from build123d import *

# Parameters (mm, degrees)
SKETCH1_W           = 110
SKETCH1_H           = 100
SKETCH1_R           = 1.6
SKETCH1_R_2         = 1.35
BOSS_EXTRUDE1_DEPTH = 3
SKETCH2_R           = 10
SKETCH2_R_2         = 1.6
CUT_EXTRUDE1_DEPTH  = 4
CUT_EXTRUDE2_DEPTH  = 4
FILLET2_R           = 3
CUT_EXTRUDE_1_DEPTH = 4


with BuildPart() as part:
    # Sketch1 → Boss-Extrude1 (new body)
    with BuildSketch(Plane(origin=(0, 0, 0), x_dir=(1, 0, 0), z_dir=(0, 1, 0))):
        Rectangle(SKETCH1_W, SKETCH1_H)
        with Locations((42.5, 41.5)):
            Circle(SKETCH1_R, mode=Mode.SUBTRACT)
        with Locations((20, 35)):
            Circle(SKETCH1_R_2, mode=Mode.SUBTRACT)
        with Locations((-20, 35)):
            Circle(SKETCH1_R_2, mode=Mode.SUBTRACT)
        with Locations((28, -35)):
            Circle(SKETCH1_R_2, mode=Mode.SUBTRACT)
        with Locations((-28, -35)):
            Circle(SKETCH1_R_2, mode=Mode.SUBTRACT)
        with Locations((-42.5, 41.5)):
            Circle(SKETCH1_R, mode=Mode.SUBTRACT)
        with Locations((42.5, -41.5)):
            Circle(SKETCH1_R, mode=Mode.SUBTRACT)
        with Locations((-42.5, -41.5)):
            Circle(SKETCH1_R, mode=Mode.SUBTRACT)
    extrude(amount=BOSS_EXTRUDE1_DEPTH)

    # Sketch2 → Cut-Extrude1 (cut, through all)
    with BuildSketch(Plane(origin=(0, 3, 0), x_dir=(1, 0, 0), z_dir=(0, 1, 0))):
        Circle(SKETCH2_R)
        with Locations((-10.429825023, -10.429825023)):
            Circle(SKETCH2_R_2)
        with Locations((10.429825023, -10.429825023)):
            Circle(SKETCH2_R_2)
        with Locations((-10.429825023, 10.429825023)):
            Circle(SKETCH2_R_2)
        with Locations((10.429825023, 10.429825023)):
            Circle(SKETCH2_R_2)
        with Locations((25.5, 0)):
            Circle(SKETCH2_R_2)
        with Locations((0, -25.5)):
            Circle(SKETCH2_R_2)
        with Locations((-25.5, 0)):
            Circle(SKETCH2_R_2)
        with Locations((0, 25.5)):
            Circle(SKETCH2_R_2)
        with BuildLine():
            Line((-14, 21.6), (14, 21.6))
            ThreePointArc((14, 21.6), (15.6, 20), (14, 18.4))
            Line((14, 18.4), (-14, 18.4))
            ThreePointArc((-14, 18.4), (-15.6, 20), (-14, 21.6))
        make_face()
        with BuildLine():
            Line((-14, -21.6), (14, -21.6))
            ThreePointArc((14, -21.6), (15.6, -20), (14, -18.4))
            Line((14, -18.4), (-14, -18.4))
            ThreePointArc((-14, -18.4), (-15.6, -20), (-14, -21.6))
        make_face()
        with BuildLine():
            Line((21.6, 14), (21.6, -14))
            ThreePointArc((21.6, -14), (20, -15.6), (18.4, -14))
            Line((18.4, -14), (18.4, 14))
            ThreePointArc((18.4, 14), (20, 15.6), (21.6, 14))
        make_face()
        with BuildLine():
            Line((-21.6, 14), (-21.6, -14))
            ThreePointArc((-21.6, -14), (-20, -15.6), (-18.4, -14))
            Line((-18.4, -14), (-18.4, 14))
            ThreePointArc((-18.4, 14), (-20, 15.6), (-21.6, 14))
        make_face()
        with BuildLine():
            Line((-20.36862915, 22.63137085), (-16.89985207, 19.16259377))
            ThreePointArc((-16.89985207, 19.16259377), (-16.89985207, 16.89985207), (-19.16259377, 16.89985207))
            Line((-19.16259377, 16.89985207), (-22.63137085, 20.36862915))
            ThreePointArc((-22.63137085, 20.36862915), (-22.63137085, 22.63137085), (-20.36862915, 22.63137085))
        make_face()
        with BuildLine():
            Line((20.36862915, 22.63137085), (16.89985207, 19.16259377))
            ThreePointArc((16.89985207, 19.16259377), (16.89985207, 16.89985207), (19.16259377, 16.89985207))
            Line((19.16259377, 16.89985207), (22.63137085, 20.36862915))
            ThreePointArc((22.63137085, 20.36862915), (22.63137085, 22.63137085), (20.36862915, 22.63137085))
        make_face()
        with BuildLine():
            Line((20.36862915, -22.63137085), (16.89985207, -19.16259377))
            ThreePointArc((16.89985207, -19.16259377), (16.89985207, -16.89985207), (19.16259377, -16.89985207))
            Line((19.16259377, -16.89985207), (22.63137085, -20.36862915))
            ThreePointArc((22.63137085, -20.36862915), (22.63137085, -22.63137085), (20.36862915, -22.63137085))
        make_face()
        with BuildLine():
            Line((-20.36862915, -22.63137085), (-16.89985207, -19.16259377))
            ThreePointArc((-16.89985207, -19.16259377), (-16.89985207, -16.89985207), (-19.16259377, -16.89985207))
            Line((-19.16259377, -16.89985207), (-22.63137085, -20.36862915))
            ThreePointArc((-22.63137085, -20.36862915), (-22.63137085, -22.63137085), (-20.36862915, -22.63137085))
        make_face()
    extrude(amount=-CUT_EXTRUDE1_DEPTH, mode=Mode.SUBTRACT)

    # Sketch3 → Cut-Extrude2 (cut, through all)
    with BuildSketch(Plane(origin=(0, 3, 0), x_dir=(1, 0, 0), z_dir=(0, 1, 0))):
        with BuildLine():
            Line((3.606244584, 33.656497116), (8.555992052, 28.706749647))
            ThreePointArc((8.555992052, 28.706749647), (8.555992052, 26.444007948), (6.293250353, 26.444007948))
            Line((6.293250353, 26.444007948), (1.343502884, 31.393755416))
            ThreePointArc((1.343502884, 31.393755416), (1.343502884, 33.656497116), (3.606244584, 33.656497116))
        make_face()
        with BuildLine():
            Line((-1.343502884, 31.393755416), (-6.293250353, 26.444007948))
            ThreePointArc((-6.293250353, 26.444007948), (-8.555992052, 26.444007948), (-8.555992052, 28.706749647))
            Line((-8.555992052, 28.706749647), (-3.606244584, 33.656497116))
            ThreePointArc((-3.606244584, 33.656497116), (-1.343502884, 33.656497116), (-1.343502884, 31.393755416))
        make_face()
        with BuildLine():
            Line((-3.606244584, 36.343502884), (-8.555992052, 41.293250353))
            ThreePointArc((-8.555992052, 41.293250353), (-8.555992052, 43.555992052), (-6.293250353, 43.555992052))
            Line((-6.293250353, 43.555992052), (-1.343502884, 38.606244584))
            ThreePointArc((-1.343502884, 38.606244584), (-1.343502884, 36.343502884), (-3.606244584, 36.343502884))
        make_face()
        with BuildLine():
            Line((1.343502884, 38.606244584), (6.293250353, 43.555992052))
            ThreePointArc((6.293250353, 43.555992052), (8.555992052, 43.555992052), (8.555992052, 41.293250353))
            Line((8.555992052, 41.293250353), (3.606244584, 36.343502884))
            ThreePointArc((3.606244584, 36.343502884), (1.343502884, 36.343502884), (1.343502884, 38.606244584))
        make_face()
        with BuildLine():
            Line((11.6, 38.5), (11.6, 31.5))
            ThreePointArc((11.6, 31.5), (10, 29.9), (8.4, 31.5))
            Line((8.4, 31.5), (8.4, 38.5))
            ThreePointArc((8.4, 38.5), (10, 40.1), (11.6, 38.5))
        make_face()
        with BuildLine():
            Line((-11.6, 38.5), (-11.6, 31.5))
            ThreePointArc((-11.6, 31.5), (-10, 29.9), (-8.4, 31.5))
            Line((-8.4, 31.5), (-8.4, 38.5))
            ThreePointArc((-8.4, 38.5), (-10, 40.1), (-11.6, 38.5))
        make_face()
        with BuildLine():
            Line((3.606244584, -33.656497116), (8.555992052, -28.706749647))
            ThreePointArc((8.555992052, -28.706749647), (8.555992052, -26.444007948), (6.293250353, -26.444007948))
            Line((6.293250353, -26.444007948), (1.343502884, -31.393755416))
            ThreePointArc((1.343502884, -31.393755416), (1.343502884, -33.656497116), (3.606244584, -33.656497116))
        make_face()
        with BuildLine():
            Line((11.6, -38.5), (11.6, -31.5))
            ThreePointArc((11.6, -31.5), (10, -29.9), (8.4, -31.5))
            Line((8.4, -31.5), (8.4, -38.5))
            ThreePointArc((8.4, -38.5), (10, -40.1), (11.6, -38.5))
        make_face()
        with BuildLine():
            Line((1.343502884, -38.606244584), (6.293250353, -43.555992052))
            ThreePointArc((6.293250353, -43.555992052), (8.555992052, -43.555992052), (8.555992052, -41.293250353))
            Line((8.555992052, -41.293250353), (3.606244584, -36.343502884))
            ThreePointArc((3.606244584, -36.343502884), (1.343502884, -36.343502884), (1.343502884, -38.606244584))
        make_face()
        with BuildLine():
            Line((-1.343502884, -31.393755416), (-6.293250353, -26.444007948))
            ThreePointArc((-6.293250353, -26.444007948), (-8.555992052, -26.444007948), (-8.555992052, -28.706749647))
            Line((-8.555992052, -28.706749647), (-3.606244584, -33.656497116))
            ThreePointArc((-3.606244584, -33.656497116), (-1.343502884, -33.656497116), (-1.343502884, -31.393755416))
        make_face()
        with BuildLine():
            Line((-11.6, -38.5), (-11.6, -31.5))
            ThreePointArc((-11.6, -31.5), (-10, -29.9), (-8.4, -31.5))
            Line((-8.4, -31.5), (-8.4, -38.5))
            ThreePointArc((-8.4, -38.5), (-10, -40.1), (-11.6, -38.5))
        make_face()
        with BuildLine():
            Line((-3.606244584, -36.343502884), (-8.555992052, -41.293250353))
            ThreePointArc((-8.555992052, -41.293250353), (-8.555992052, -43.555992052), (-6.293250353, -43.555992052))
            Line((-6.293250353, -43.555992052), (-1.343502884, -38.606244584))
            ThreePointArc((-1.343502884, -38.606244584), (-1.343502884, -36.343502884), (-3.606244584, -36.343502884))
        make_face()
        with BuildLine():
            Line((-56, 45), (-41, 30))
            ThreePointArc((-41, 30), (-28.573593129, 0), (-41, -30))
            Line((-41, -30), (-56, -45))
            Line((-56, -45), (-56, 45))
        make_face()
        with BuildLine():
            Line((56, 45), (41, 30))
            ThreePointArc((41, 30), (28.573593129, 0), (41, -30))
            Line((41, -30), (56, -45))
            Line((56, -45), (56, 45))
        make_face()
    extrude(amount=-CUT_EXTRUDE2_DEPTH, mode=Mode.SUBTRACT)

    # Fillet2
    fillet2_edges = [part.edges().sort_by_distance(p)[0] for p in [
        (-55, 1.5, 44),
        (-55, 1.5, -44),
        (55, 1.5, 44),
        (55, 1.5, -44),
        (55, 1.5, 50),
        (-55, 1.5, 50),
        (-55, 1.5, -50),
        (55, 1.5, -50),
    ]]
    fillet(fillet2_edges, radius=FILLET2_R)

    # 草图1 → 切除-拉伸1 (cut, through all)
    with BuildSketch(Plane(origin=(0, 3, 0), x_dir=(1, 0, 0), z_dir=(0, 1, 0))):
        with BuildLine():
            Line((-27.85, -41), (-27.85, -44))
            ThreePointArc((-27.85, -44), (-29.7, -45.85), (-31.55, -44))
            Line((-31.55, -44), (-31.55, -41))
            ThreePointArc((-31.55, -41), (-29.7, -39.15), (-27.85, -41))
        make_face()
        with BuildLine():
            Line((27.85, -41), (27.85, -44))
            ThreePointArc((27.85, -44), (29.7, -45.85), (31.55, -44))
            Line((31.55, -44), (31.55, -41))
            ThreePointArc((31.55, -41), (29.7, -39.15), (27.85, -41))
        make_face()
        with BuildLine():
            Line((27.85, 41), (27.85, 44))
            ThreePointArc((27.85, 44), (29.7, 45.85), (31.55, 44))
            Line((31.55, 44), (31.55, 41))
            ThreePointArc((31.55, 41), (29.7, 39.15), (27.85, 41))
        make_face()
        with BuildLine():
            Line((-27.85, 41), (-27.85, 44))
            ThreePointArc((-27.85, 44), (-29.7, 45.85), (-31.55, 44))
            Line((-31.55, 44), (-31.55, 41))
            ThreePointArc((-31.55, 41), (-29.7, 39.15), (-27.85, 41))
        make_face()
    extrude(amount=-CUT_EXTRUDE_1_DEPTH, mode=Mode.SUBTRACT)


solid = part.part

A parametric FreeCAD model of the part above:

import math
import FreeCAD as App
import Part
import Sketcher

V = App.Vector
Q = App.Units.Quantity


def edges_at(feature, points):
    """Names of the edges that pass closest to the given points."""
    edges = feature.Shape.Edges
    near = lambda p: min(range(len(edges)), key=lambda i: edges[i].distToShape(Part.Vertex(*p))[0])
    return sorted({f"Edge{near(p) + 1}" for p in points})


def add_polygon(sketch, points):
    """Adds a closed chain of lines whose ends are joined by coincident constraints."""
    first, n = sketch.GeometryCount, len(points)
    for a, b in zip(points, points[1:] + points[:1]):
        sketch.addGeometry(Part.LineSegment(App.Vector(*a, 0), App.Vector(*b, 0)), False)
    for i in range(n):
        sketch.addConstraint(Sketcher.Constraint("Coincident", first + i, 2, first + (i + 1) % n, 1))

doc = App.newDocument("Part")
body = doc.addObject("PartDesign::Body", "Body")

# Sketch on XZ plane
sketch1 = body.newObject("Sketcher::SketchObject", "Sketch")
sketch1.AttachmentSupport = (doc.getObject("XZ_Plane"), [""])
sketch1.MapMode = "FlatFace"
add_polygon(sketch1, [(-55, -50), (-55, 50), (55, 50), (55, -50)])  # lines 0-3
sketch1.addGeometry(Part.Circle(V(-42.5, 41.5, 0), V(0, 0, 1), 1.6), False)  # 4
sketch1.addGeometry(Part.Circle(V(-28, 35, 0), V(0, 0, 1), 1.4), False)  # 5
sketch1.addGeometry(Part.Circle(V(28, 35, 0), V(0, 0, 1), 1.4), False)  # 6
sketch1.addGeometry(Part.Circle(V(42.5, 41.5, 0), V(0, 0, 1), 1.6), False)  # 7
sketch1.addGeometry(Part.Circle(V(-42.5, -41.5, 0), V(0, 0, 1), 1.6), False)  # 8
sketch1.addGeometry(Part.Circle(V(-20, -35, 0), V(0, 0, 1), 1.4), False)  # 9
sketch1.addGeometry(Part.Circle(V(20, -35, 0), V(0, 0, 1), 1.4), False)  # 10
sketch1.addGeometry(Part.Circle(V(42.5, -41.5, 0), V(0, 0, 1), 1.6), False)  # 11
sketch1.addConstraint([
    Sketcher.Constraint("Vertical", 0),
    Sketcher.Constraint("Horizontal", 1),
    Sketcher.Constraint("Vertical", 2),
    Sketcher.Constraint("Horizontal", 3),
    Sketcher.Constraint("Equal", 5, 6),
    Sketcher.Constraint("Equal", 4, 7),
    Sketcher.Constraint("Equal", 7, 8),
    Sketcher.Constraint("Equal", 6, 9),
    Sketcher.Constraint("Equal", 9, 10),
    Sketcher.Constraint("Equal", 8, 11),
    Sketcher.Constraint("Symmetric", 7, 3, 8, 3, -1, 1),
    Sketcher.Constraint("Symmetric", 4, 3, 11, 3, -1, 1),
    Sketcher.Constraint("Symmetric", 0, 2, 2, 2, -1, 1),
    Sketcher.Constraint("Symmetric", 5, 3, 6, 3, -2),
    Sketcher.Constraint("Symmetric", 4, 3, 7, 3, -2),
    Sketcher.Constraint("Symmetric", 9, 3, 10, 3, -2),
    Sketcher.Constraint("Diameter", 4, Q("3.2 mm")),
    Sketcher.Constraint("Diameter", 5, Q("2.7 mm")),
    Sketcher.Constraint("DistanceX", 1, 1, 1, 2, Q("110 mm")),
    Sketcher.Constraint("DistanceY", 0, 1, 0, 2, Q("100 mm")),
    Sketcher.Constraint("DistanceX", 5, 3, -1, 1, Q("28 mm")),
    Sketcher.Constraint("DistanceY", -1, 1, 5, 3, Q("35 mm")),
    Sketcher.Constraint("DistanceX", 9, 3, -1, 1, Q("20 mm")),
    Sketcher.Constraint("DistanceY", 9, 3, -1, 1, Q("35 mm")),
    Sketcher.Constraint("DistanceX", 4, 3, 7, 3, Q("85 mm")),
    Sketcher.Constraint("DistanceY", 8, 3, 4, 3, Q("83 mm")),
])
pad1 = body.newObject("PartDesign::Pad", "Pad")
pad1.Profile = sketch1
pad1.Length = 3
pad1.Reversed = True

# Sketch on XZ plane
sketch2 = body.newObject("Sketcher::SketchObject", "Sketch001")
sketch2.AttachmentSupport = (doc.getObject("XZ_Plane"), [""])
sketch2.MapMode = "FlatFace"
sketch2.AttachmentOffset = App.Placement(V(0, 0, -3), App.Rotation())
sketch2.addGeometry([
    Part.Circle(V(0, 0, 0), V(0, 0, 1), 10),  # 0
    Part.Circle(V(-10.4, 10.4, 0), V(0, 0, 1), 1.6),  # 1
    Part.Circle(V(10.4, 10.4, 0), V(0, 0, 1), 1.6),  # 2
    Part.Circle(V(-10.4, -10.4, 0), V(0, 0, 1), 1.6),  # 3
    Part.Circle(V(10.4, -10.4, 0), V(0, 0, 1), 1.6),  # 4
    Part.Circle(V(25.5, 0, 0), V(0, 0, 1), 1.6),  # 5
    Part.Circle(V(0, 25.5, 0), V(0, 0, 1), 1.6),  # 6
    Part.Circle(V(-25.5, 0, 0), V(0, 0, 1), 1.6),  # 7
    Part.Circle(V(0, -25.5, 0), V(0, 0, 1), 1.6),  # 8
    Part.LineSegment(V(14, -21.6, 0), V(-14, -21.6, 0)),  # 9
    Part.ArcOfCircle(Part.Circle(V(-14, -20, 0), V(0, 0, 1), 1.6), math.radians(90), math.radians(270)),  # 10
    Part.LineSegment(V(-14, -18.4, 0), V(14, -18.4, 0)),  # 11
    Part.ArcOfCircle(Part.Circle(V(14, -20, 0), V(0, 0, 1), 1.6), math.radians(-90), math.radians(90)),  # 12
    Part.LineSegment(V(-14, 21.6, 0), V(14, 21.6, 0)),  # 13
    Part.ArcOfCircle(Part.Circle(V(14, 20, 0), V(0, 0, 1), 1.6), math.radians(-90), math.radians(90)),  # 14
    Part.LineSegment(V(14, 18.4, 0), V(-14, 18.4, 0)),  # 15
    Part.ArcOfCircle(Part.Circle(V(-14, 20, 0), V(0, 0, 1), 1.6), math.radians(90), math.radians(270)),  # 16
    Part.LineSegment(V(21.6, 14, 0), V(21.6, -14, 0)),  # 17
    Part.ArcOfCircle(Part.Circle(V(20, -14, 0), V(0, 0, 1), 1.6), math.radians(180), math.radians(360)),  # 18
    Part.LineSegment(V(18.4, -14, 0), V(18.4, 14, 0)),  # 19
    Part.ArcOfCircle(Part.Circle(V(20, 14, 0), V(0, 0, 1), 1.6), math.radians(0), math.radians(180)),  # 20
    Part.LineSegment(V(-21.6, -14, 0), V(-21.6, 14, 0)),  # 21
    Part.ArcOfCircle(Part.Circle(V(-20, 14, 0), V(0, 0, 1), 1.6), math.radians(0), math.radians(180)),  # 22
    Part.LineSegment(V(-18.4, 14, 0), V(-18.4, -14, 0)),  # 23
    Part.ArcOfCircle(Part.Circle(V(-20, -14, 0), V(0, 0, 1), 1.6), math.radians(180), math.radians(360)),  # 24
    Part.LineSegment(V(-16.9, -19.2, 0), V(-20.4, -22.6, 0)),  # 25
    Part.ArcOfCircle(Part.Circle(V(-21.5, -21.5, 0), V(0, 0, 1), 1.6), math.radians(135), math.radians(315)),  # 26
    Part.LineSegment(V(-22.6, -20.4, 0), V(-19.2, -16.9, 0)),  # 27
    Part.ArcOfCircle(Part.Circle(V(-18, -18, 0), V(0, 0, 1), 1.6), math.radians(-45), math.radians(135)),  # 28
    Part.LineSegment(V(20.4, -22.6, 0), V(16.9, -19.2, 0)),  # 29
    Part.ArcOfCircle(Part.Circle(V(18, -18, 0), V(0, 0, 1), 1.6), math.radians(45), math.radians(225)),  # 30
    Part.LineSegment(V(19.2, -16.9, 0), V(22.6, -20.4, 0)),  # 31
    Part.ArcOfCircle(Part.Circle(V(21.5, -21.5, 0), V(0, 0, 1), 1.6), math.radians(-135), math.radians(45)),  # 32
    Part.LineSegment(V(16.9, 19.2, 0), V(20.4, 22.6, 0)),  # 33
    Part.ArcOfCircle(Part.Circle(V(21.5, 21.5, 0), V(0, 0, 1), 1.6), math.radians(-45), math.radians(135)),  # 34
    Part.LineSegment(V(22.6, 20.4, 0), V(19.2, 16.9, 0)),  # 35
    Part.ArcOfCircle(Part.Circle(V(18, 18, 0), V(0, 0, 1), 1.6), math.radians(135), math.radians(315)),  # 36
    Part.LineSegment(V(-20.4, 22.6, 0), V(-16.9, 19.2, 0)),  # 37
    Part.ArcOfCircle(Part.Circle(V(-18, 18, 0), V(0, 0, 1), 1.6), math.radians(-135), math.radians(45)),  # 38
    Part.LineSegment(V(-19.2, 16.9, 0), V(-22.6, 20.4, 0)),  # 39
    Part.ArcOfCircle(Part.Circle(V(-21.5, 21.5, 0), V(0, 0, 1), 1.6), math.radians(45), math.radians(225)),  # 40
], False)
sketch2.addConstraint([
    Sketcher.Constraint("Tangent", 9, 2, 10, 2),
    Sketcher.Constraint("Tangent", 10, 1, 11, 1),
    Sketcher.Constraint("Tangent", 11, 2, 12, 2),
    Sketcher.Constraint("Tangent", 12, 1, 9, 1),
    Sketcher.Constraint("Tangent", 13, 2, 14, 2),
    Sketcher.Constraint("Tangent", 14, 1, 15, 1),
    Sketcher.Constraint("Tangent", 15, 2, 16, 2),
    Sketcher.Constraint("Tangent", 16, 1, 13, 1),
    Sketcher.Constraint("Tangent", 17, 2, 18, 2),
    Sketcher.Constraint("Tangent", 18, 1, 19, 1),
    Sketcher.Constraint("Tangent", 19, 2, 20, 2),
    Sketcher.Constraint("Tangent", 20, 1, 17, 1),
    Sketcher.Constraint("Tangent", 21, 2, 22, 2),
    Sketcher.Constraint("Tangent", 22, 1, 23, 1),
    Sketcher.Constraint("Tangent", 23, 2, 24, 2),
    Sketcher.Constraint("Tangent", 24, 1, 21, 1),
    Sketcher.Constraint("Tangent", 25, 2, 26, 2),
    Sketcher.Constraint("Tangent", 26, 1, 27, 1),
    Sketcher.Constraint("Tangent", 27, 2, 28, 2),
    Sketcher.Constraint("Tangent", 28, 1, 25, 1),
    Sketcher.Constraint("Tangent", 29, 2, 30, 2),
    Sketcher.Constraint("Tangent", 30, 1, 31, 1),
    Sketcher.Constraint("Tangent", 31, 2, 32, 2),
    Sketcher.Constraint("Tangent", 32, 1, 29, 1),
    Sketcher.Constraint("Tangent", 33, 2, 34, 2),
    Sketcher.Constraint("Tangent", 34, 1, 35, 1),
    Sketcher.Constraint("Tangent", 35, 2, 36, 2),
    Sketcher.Constraint("Tangent", 36, 1, 33, 1),
    Sketcher.Constraint("Tangent", 37, 2, 38, 2),
    Sketcher.Constraint("Tangent", 38, 1, 39, 1),
    Sketcher.Constraint("Tangent", 39, 2, 40, 2),
    Sketcher.Constraint("Tangent", 40, 1, 37, 1),
    Sketcher.Constraint("Horizontal", 9),
    Sketcher.Constraint("Horizontal", 11),
    Sketcher.Constraint("Horizontal", 13),
    Sketcher.Constraint("Horizontal", 15),
    Sketcher.Constraint("Vertical", 17),
    Sketcher.Constraint("Vertical", 19),
    Sketcher.Constraint("Vertical", 21),
    Sketcher.Constraint("Vertical", 23),
    Sketcher.Constraint("Coincident", 0, 3, -1, 1),
    Sketcher.Constraint("Equal", 1, 2),
    Sketcher.Constraint("Equal", 2, 3),
    Sketcher.Constraint("Equal", 3, 4),
    Sketcher.Constraint("Equal", 4, 5),
    Sketcher.Constraint("Equal", 5, 6),
    Sketcher.Constraint("Equal", 6, 7),
    Sketcher.Constraint("Equal", 7, 8),
    Sketcher.Constraint("Equal", 8, 10),
    Sketcher.Constraint("Equal", 12, 14),
    Sketcher.Constraint("Equal", 16, 18),
    Sketcher.Constraint("Equal", 20, 22),
    Sketcher.Constraint("Equal", 24, 26),
    Sketcher.Constraint("Equal", 26, 28),
    Sketcher.Constraint("Equal", 28, 30),
    Sketcher.Constraint("Equal", 30, 32),
    Sketcher.Constraint("Equal", 32, 34),
    Sketcher.Constraint("Equal", 34, 36),
    Sketcher.Constraint("Equal", 36, 38),
    Sketcher.Constraint("Equal", 38, 40),
    Sketcher.Constraint("Symmetric", 2, 3, 3, 3, -1, 1),
    Sketcher.Constraint("Symmetric", 1, 3, 4, 3, -1, 1),
    Sketcher.Constraint("Symmetric", 5, 3, 7, 3, -1, 1),
    Sketcher.Constraint("Symmetric", 6, 3, 8, 3, -1, 1),
    Sketcher.Constraint("Symmetric", 10, 3, 14, 3, -1, 1),
    Sketcher.Constraint("Symmetric", 18, 3, 22, 3, -1, 1),
    Sketcher.Constraint("Symmetric", 26, 3, 34, 3, -1, 1),
    Sketcher.Constraint("Symmetric", 28, 3, 36, 3, -1, 1),
    Sketcher.Constraint("Symmetric", 30, 3, 38, 3, -1, 1),
    Sketcher.Constraint("Symmetric", 32, 3, 40, 3, -1, 1),
    Sketcher.Constraint("Symmetric", 1, 3, 2, 3, -2),
    Sketcher.Constraint("Symmetric", 28, 3, 30, 3, -2),
    Sketcher.Constraint("Symmetric", 26, 3, 32, 3, -2),
    Sketcher.Constraint("PointOnObject", 5, 3, -1),
    Sketcher.Constraint("PointOnObject", 6, 3, -2),
    Sketcher.Constraint("Perpendicular", 27, 29),
    Sketcher.Constraint("Horizontal", 20, 3, 22, 3),
    Sketcher.Constraint("Horizontal", 18, 3, 24, 3),
    Sketcher.Constraint("Vertical", 12, 3, 14, 3),
    Sketcher.Constraint("Vertical", 10, 3, 16, 3),
    Sketcher.Constraint("Equal", 15, 17),
    Sketcher.Constraint("Diameter", 0, Q("20 mm")),
    Sketcher.Constraint("Diameter", 1, Q("3.2 mm")),
    Sketcher.Constraint("DistanceX", 9, 2, 9, 1, Q("28 mm")),
    Sketcher.Constraint("DistanceY", 10, 3, -1, 1, Q("20 mm")),
    Sketcher.Constraint("DistanceX", -1, 1, 18, 3, Q("20 mm")),
    Sketcher.Constraint("DistanceX", 7, 3, 26, 3, Q("4 mm")),
    Sketcher.Constraint("DistanceY", 8, 3, 26, 3, Q("4 mm")),
    Sketcher.Constraint("DistanceX", -1, 1, 5, 3, Q("25.5 mm")),
    Sketcher.Constraint("DistanceY", -1, 1, 6, 3, Q("25.5 mm")),
    Sketcher.Constraint("Distance", 25, Q("4.905592 mm")),
    Sketcher.Constraint("DistanceX", 1, 3, 2, 3, Q("20.85965 mm")),
    Sketcher.Constraint("DistanceY", 3, 3, 1, 3, Q("20.85965 mm")),
])
pocket1 = body.newObject("PartDesign::Pocket", "Pocket")
pocket1.Profile = sketch2
pocket1.Type = "ThroughAll"
pocket1.Reversed = True

# Sketch on XZ plane
sketch3 = body.newObject("Sketcher::SketchObject", "Sketch002")
sketch3.AttachmentSupport = (doc.getObject("XZ_Plane"), [""])
sketch3.MapMode = "FlatFace"
sketch3.AttachmentOffset = App.Placement(V(0, 0, -3), App.Rotation())
sketch3.addGeometry([
    Part.LineSegment(V(8.6, -28.7, 0), V(3.6, -33.7, 0)),  # 0
    Part.ArcOfCircle(Part.Circle(V(2.5, -32.5, 0), V(0, 0, 1), 1.6), math.radians(135), math.radians(315)),  # 1
    Part.LineSegment(V(1.3, -31.4, 0), V(6.3, -26.4, 0)),  # 2
    Part.ArcOfCircle(Part.Circle(V(7.4, -27.6, 0), V(0, 0, 1), 1.6), math.radians(-45), math.radians(135)),  # 3
    Part.LineSegment(V(-6.3, -26.4, 0), V(-1.3, -31.4, 0)),  # 4
    Part.ArcOfCircle(Part.Circle(V(-2.5, -32.5, 0), V(0, 0, 1), 1.6), math.radians(-135), math.radians(45)),  # 5
    Part.LineSegment(V(-3.6, -33.7, 0), V(-8.6, -28.7, 0)),  # 6
    Part.ArcOfCircle(Part.Circle(V(-7.4, -27.6, 0), V(0, 0, 1), 1.6), math.radians(45), math.radians(225)),  # 7
    Part.LineSegment(V(-8.6, -41.3, 0), V(-3.6, -36.3, 0)),  # 8
    Part.ArcOfCircle(Part.Circle(V(-2.5, -37.5, 0), V(0, 0, 1), 1.6), math.radians(-45), math.radians(135)),  # 9
    Part.LineSegment(V(-1.3, -38.6, 0), V(-6.3, -43.6, 0)),  # 10
    Part.ArcOfCircle(Part.Circle(V(-7.4, -42.4, 0), V(0, 0, 1), 1.6), math.radians(135), math.radians(315)),  # 11
    Part.LineSegment(V(6.3, -43.6, 0), V(1.3, -38.6, 0)),  # 12
    Part.ArcOfCircle(Part.Circle(V(2.5, -37.5, 0), V(0, 0, 1), 1.6), math.radians(45), math.radians(225)),  # 13
    Part.LineSegment(V(3.6, -36.3, 0), V(8.6, -41.3, 0)),  # 14
    Part.ArcOfCircle(Part.Circle(V(7.4, -42.4, 0), V(0, 0, 1), 1.6), math.radians(-135), math.radians(45)),  # 15
    Part.LineSegment(V(11.6, -31.5, 0), V(11.6, -38.5, 0)),  # 16
    Part.ArcOfCircle(Part.Circle(V(10, -38.5, 0), V(0, 0, 1), 1.6), math.radians(180), math.radians(360)),  # 17
    Part.LineSegment(V(8.4, -38.5, 0), V(8.4, -31.5, 0)),  # 18
    Part.ArcOfCircle(Part.Circle(V(10, -31.5, 0), V(0, 0, 1), 1.6), math.radians(0), math.radians(180)),  # 19
    Part.LineSegment(V(-11.6, -38.5, 0), V(-11.6, -31.5, 0)),  # 20
    Part.ArcOfCircle(Part.Circle(V(-10, -31.5, 0), V(0, 0, 1), 1.6), math.radians(0), math.radians(180)),  # 21
    Part.LineSegment(V(-8.4, -31.5, 0), V(-8.4, -38.5, 0)),  # 22
    Part.ArcOfCircle(Part.Circle(V(-10, -38.5, 0), V(0, 0, 1), 1.6), math.radians(180), math.radians(360)),  # 23
    Part.LineSegment(V(3.6, 33.7, 0), V(8.6, 28.7, 0)),  # 24
    Part.ArcOfCircle(Part.Circle(V(7.4, 27.6, 0), V(0, 0, 1), 1.6), math.radians(-135), math.radians(45)),  # 25
    Part.LineSegment(V(6.3, 26.4, 0), V(1.3, 31.4, 0)),  # 26
    Part.ArcOfCircle(Part.Circle(V(2.5, 32.5, 0), V(0, 0, 1), 1.6), math.radians(45), math.radians(225)),  # 27
    Part.LineSegment(V(11.6, 38.5, 0), V(11.6, 31.5, 0)),  # 28
    Part.ArcOfCircle(Part.Circle(V(10, 31.5, 0), V(0, 0, 1), 1.6), math.radians(180), math.radians(360)),  # 29
    Part.LineSegment(V(8.4, 31.5, 0), V(8.4, 38.5, 0)),  # 30
    Part.ArcOfCircle(Part.Circle(V(10, 38.5, 0), V(0, 0, 1), 1.6), math.radians(0), math.radians(180)),  # 31
    Part.LineSegment(V(1.3, 38.6, 0), V(6.3, 43.6, 0)),  # 32
    Part.ArcOfCircle(Part.Circle(V(7.4, 42.4, 0), V(0, 0, 1), 1.6), math.radians(-45), math.radians(135)),  # 33
    Part.LineSegment(V(8.6, 41.3, 0), V(3.6, 36.3, 0)),  # 34
    Part.ArcOfCircle(Part.Circle(V(2.5, 37.5, 0), V(0, 0, 1), 1.6), math.radians(135), math.radians(315)),  # 35
    Part.LineSegment(V(-1.3, 31.4, 0), V(-6.3, 26.4, 0)),  # 36
    Part.ArcOfCircle(Part.Circle(V(-7.4, 27.6, 0), V(0, 0, 1), 1.6), math.radians(135), math.radians(315)),  # 37
    Part.LineSegment(V(-8.6, 28.7, 0), V(-3.6, 33.7, 0)),  # 38
    Part.ArcOfCircle(Part.Circle(V(-2.5, 32.5, 0), V(0, 0, 1), 1.6), math.radians(-45), math.radians(135)),  # 39
    Part.LineSegment(V(-11.6, 31.5, 0), V(-11.6, 38.5, 0)),  # 40
    Part.ArcOfCircle(Part.Circle(V(-10, 38.5, 0), V(0, 0, 1), 1.6), math.radians(0), math.radians(180)),  # 41
    Part.LineSegment(V(-8.4, 38.5, 0), V(-8.4, 31.5, 0)),  # 42
    Part.ArcOfCircle(Part.Circle(V(-10, 31.5, 0), V(0, 0, 1), 1.6), math.radians(180), math.radians(360)),  # 43
    Part.LineSegment(V(-3.6, 36.3, 0), V(-8.6, 41.3, 0)),  # 44
    Part.ArcOfCircle(Part.Circle(V(-7.4, 42.4, 0), V(0, 0, 1), 1.6), math.radians(45), math.radians(225)),  # 45
    Part.LineSegment(V(-6.3, 43.6, 0), V(-1.3, 38.6, 0)),  # 46
    Part.ArcOfCircle(Part.Circle(V(-2.5, 37.5, 0), V(0, 0, 1), 1.6), math.radians(-135), math.radians(45)),  # 47
    Part.LineSegment(V(-41, -30, 0), V(-56, -45, 0)),  # 48
    Part.LineSegment(V(-56, -45, 0), V(-56, 45, 0)),  # 49
    Part.LineSegment(V(-56, 45, 0), V(-41, 30, 0)),  # 50
    Part.ArcOfCircle(Part.Circle(V(-71, 0, 0), V(0, 0, 1), 42.4), math.radians(-45), math.radians(45)),  # 51
    Part.LineSegment(V(56, -45, 0), V(41, -30, 0)),  # 52
    Part.ArcOfCircle(Part.Circle(V(71, 0, 0), V(0, 0, 1), 42.4), math.radians(135), math.radians(225)),  # 53
    Part.LineSegment(V(41, 30, 0), V(56, 45, 0)),  # 54
    Part.LineSegment(V(56, 45, 0), V(56, -45, 0)),  # 55
], False)
sketch3.addConstraint([
    Sketcher.Constraint("Tangent", 0, 2, 1, 2),
    Sketcher.Constraint("Tangent", 1, 1, 2, 1),
    Sketcher.Constraint("Tangent", 2, 2, 3, 2),
    Sketcher.Constraint("Tangent", 3, 1, 0, 1),
    Sketcher.Constraint("Tangent", 4, 2, 5, 2),
    Sketcher.Constraint("Tangent", 5, 1, 6, 1),
    Sketcher.Constraint("Tangent", 6, 2, 7, 2),
    Sketcher.Constraint("Tangent", 7, 1, 4, 1),
    Sketcher.Constraint("Tangent", 8, 2, 9, 2),
    Sketcher.Constraint("Tangent", 9, 1, 10, 1),
    Sketcher.Constraint("Tangent", 10, 2, 11, 2),
    Sketcher.Constraint("Tangent", 11, 1, 8, 1),
    Sketcher.Constraint("Tangent", 12, 2, 13, 2),
    Sketcher.Constraint("Tangent", 13, 1, 14, 1),
    Sketcher.Constraint("Tangent", 14, 2, 15, 2),
    Sketcher.Constraint("Tangent", 15, 1, 12, 1),
    Sketcher.Constraint("Tangent", 16, 2, 17, 2),
    Sketcher.Constraint("Tangent", 17, 1, 18, 1),
    Sketcher.Constraint("Tangent", 18, 2, 19, 2),
    Sketcher.Constraint("Tangent", 19, 1, 16, 1),
    Sketcher.Constraint("Tangent", 20, 2, 21, 2),
    Sketcher.Constraint("Tangent", 21, 1, 22, 1),
    Sketcher.Constraint("Tangent", 22, 2, 23, 2),
    Sketcher.Constraint("Tangent", 23, 1, 20, 1),
    Sketcher.Constraint("Tangent", 24, 2, 25, 2),
    Sketcher.Constraint("Tangent", 25, 1, 26, 1),
    Sketcher.Constraint("Tangent", 26, 2, 27, 2),
    Sketcher.Constraint("Tangent", 27, 1, 24, 1),
    Sketcher.Constraint("Tangent", 28, 2, 29, 2),
    Sketcher.Constraint("Tangent", 29, 1, 30, 1),
    Sketcher.Constraint("Tangent", 30, 2, 31, 2),
    Sketcher.Constraint("Tangent", 31, 1, 28, 1),
    Sketcher.Constraint("Tangent", 32, 2, 33, 2),
    Sketcher.Constraint("Tangent", 33, 1, 34, 1),
    Sketcher.Constraint("Tangent", 34, 2, 35, 2),
    Sketcher.Constraint("Tangent", 35, 1, 32, 1),
    Sketcher.Constraint("Tangent", 36, 2, 37, 2),
    Sketcher.Constraint("Tangent", 37, 1, 38, 1),
    Sketcher.Constraint("Tangent", 38, 2, 39, 2),
    Sketcher.Constraint("Tangent", 39, 1, 36, 1),
    Sketcher.Constraint("Tangent", 40, 2, 41, 2),
    Sketcher.Constraint("Tangent", 41, 1, 42, 1),
    Sketcher.Constraint("Tangent", 42, 2, 43, 2),
    Sketcher.Constraint("Tangent", 43, 1, 40, 1),
    Sketcher.Constraint("Tangent", 44, 2, 45, 2),
    Sketcher.Constraint("Tangent", 45, 1, 46, 1),
    Sketcher.Constraint("Tangent", 46, 2, 47, 2),
    Sketcher.Constraint("Tangent", 47, 1, 44, 1),
    Sketcher.Constraint("Coincident", 48, 2, 49, 1),
    Sketcher.Constraint("Coincident", 49, 2, 50, 1),
    Sketcher.Constraint("Tangent", 50, 2, 51, 2),
    Sketcher.Constraint("Tangent", 51, 1, 48, 1),
    Sketcher.Constraint("Tangent", 52, 2, 53, 2),
    Sketcher.Constraint("Tangent", 53, 1, 54, 1),
    Sketcher.Constraint("Coincident", 54, 2, 55, 1),
    Sketcher.Constraint("Coincident", 55, 2, 52, 1),
    Sketcher.Constraint("Vertical", 16),
    Sketcher.Constraint("Vertical", 18),
    Sketcher.Constraint("Vertical", 20),
    Sketcher.Constraint("Vertical", 22),
    Sketcher.Constraint("Vertical", 28),
    Sketcher.Constraint("Vertical", 30),
    Sketcher.Constraint("Vertical", 40),
    Sketcher.Constraint("Vertical", 42),
    Sketcher.Constraint("Vertical", 49),
    Sketcher.Constraint("Vertical", 55),
    Sketcher.Constraint("Equal", 1, 3),
    Sketcher.Constraint("Equal", 3, 5),
    Sketcher.Constraint("Equal", 5, 7),
    Sketcher.Constraint("Equal", 7, 9),
    Sketcher.Constraint("Equal", 9, 11),
    Sketcher.Constraint("Equal", 11, 13),
    Sketcher.Constraint("Equal", 13, 15),
    Sketcher.Constraint("Equal", 15, 17),
    Sketcher.Constraint("Equal", 19, 21),
    Sketcher.Constraint("Equal", 23, 25),
    Sketcher.Constraint("Equal", 25, 27),
    Sketcher.Constraint("Equal", 27, 29),
    Sketcher.Constraint("Equal", 31, 33),
    Sketcher.Constraint("Equal", 33, 35),
    Sketcher.Constraint("Equal", 35, 37),
    Sketcher.Constraint("Equal", 37, 39),
    Sketcher.Constraint("Equal", 39, 41),
    Sketcher.Constraint("Equal", 43, 45),
    Sketcher.Constraint("Equal", 45, 47),
    Sketcher.Constraint("Equal", 51, 53),
    Sketcher.Constraint("Symmetric", 7, 3, 25, 3, -1, 1),
    Sketcher.Constraint("Symmetric", 5, 3, 27, 3, -1, 1),
    Sketcher.Constraint("Symmetric", 21, 3, 29, 3, -1, 1),
    Sketcher.Constraint("Symmetric", 11, 3, 33, 3, -1, 1),
    Sketcher.Constraint("Symmetric", 9, 3, 35, 3, -1, 1),
    Sketcher.Constraint("Symmetric", 3, 3, 37, 3, -1, 1),
    Sketcher.Constraint("Symmetric", 1, 3, 39, 3, -1, 1),
    Sketcher.Constraint("Symmetric", 17, 3, 41, 3, -1, 1),
    Sketcher.Constraint("Symmetric", 15, 3, 45, 3, -1, 1),
    Sketcher.Constraint("Symmetric", 13, 3, 47, 3, -1, 1),
    Sketcher.Constraint("Symmetric", 51, 3, 53, 3, -1, 1),
    Sketcher.Constraint("Symmetric", 48, 2, 54, 2, -1, 1),
    Sketcher.Constraint("Symmetric", 1, 3, 5, 3, -2),
    Sketcher.Constraint("Symmetric", 3, 3, 7, 3, -2),
    Sketcher.Constraint("Symmetric", 9, 3, 13, 3, -2),
    Sketcher.Constraint("Symmetric", 11, 3, 15, 3, -2),
    Sketcher.Constraint("Symmetric", 19, 3, 21, 3, -2),
    Sketcher.Constraint("Symmetric", 51, 1, 52, 2, -2),
    Sketcher.Constraint("Perpendicular", 2, 4),
    Sketcher.Constraint("Perpendicular", 6, 8),
    Sketcher.Constraint("Perpendicular", 46, 48),
    Sketcher.Constraint("Perpendicular", 48, 50),
    Sketcher.Constraint("Horizontal", 17, 3, 23, 3),
    Sketcher.Constraint("Horizontal", 31, 3, 41, 3),
    Sketcher.Constraint("Horizontal", 29, 3, 43, 3),
    Sketcher.Constraint("Vertical", 5, 3, 9, 3),
    Sketcher.Constraint("Vertical", 7, 3, 11, 3),
    Sketcher.Constraint("Radius", 1, Q("1.6 mm")),
    Sketcher.Constraint("DistanceY", 16, 2, 16, 1, Q("7 mm")),
    Sketcher.Constraint("DistanceY", 49, 1, 49, 2, Q("90 mm")),
    Sketcher.Constraint("Distance", 0, Q("7 mm")),
    Sketcher.Constraint("DistanceX", -1, 1, 17, 3, Q("10 mm")),
    Sketcher.Constraint("DistanceX", 51, 3, -1, 1, Q("71 mm")),
    Sketcher.Constraint("DistanceX", 48, 2, -1, 1, Q("56 mm")),
    Sketcher.Constraint("DistanceY", 17, 3, -1, 1, Q("38.5 mm")),
    Sketcher.Constraint("DistanceX", -1, 1, 3, 3, Q("7.424621 mm")),
    Sketcher.Constraint("DistanceY", 3, 3, -1, 1, Q("27.575379 mm")),
    Sketcher.Constraint("DistanceY", 11, 3, -1, 1, Q("42.424621 mm")),
])
pocket2 = body.newObject("PartDesign::Pocket", "Pocket001")
pocket2.Profile = sketch3
pocket2.Type = "ThroughAll"
pocket2.Reversed = True
doc.recompute()

fillet = body.newObject("PartDesign::Fillet", "Fillet")
fillet.Base = (pocket2, edges_at(pocket2, [
    (-55, 1.5, 44),
    (-55, 1.5, -44),
    (55, 1.5, 44),
    (55, 1.5, -44),
    (55, 1.5, 50),
    (-55, 1.5, 50),
    (-55, 1.5, -50),
    (55, 1.5, -50),
]))
fillet.Radius = 3

# Sketch on XZ plane
sketch4 = body.newObject("Sketcher::SketchObject", "Sketch003")
sketch4.AttachmentSupport = (doc.getObject("XZ_Plane"), [""])
sketch4.MapMode = "FlatFace"
sketch4.AttachmentOffset = App.Placement(V(0, 0, -3), App.Rotation())
sketch4.addGeometry([
    Part.LineSegment(V(-27.9, 44, 0), V(-27.9, 41, 0)),  # 0
    Part.ArcOfCircle(Part.Circle(V(-29.7, 41, 0), V(0, 0, 1), 1.9), math.radians(180), math.radians(360)),  # 1
    Part.LineSegment(V(-31.6, 41, 0), V(-31.6, 44, 0)),  # 2
    Part.ArcOfCircle(Part.Circle(V(-29.7, 44, 0), V(0, 0, 1), 1.9), math.radians(0), math.radians(180)),  # 3
    Part.LineSegment(V(27.9, 41, 0), V(27.9, 44, 0)),  # 4
    Part.ArcOfCircle(Part.Circle(V(29.7, 44, 0), V(0, 0, 1), 1.9), math.radians(0), math.radians(180)),  # 5
    Part.LineSegment(V(31.6, 44, 0), V(31.6, 41, 0)),  # 6
    Part.ArcOfCircle(Part.Circle(V(29.7, 41, 0), V(0, 0, 1), 1.9), math.radians(180), math.radians(360)),  # 7
    Part.LineSegment(V(27.9, -44, 0), V(27.9, -41, 0)),  # 8
    Part.ArcOfCircle(Part.Circle(V(29.7, -41, 0), V(0, 0, 1), 1.9), math.radians(0), math.radians(180)),  # 9
    Part.LineSegment(V(31.6, -41, 0), V(31.6, -44, 0)),  # 10
    Part.ArcOfCircle(Part.Circle(V(29.7, -44, 0), V(0, 0, 1), 1.9), math.radians(180), math.radians(360)),  # 11
    Part.LineSegment(V(-27.9, -41, 0), V(-27.9, -44, 0)),  # 12
    Part.ArcOfCircle(Part.Circle(V(-29.7, -44, 0), V(0, 0, 1), 1.9), math.radians(180), math.radians(360)),  # 13
    Part.LineSegment(V(-31.6, -44, 0), V(-31.6, -41, 0)),  # 14
    Part.ArcOfCircle(Part.Circle(V(-29.7, -41, 0), V(0, 0, 1), 1.9), math.radians(0), math.radians(180)),  # 15
], False)
sketch4.addConstraint([
    Sketcher.Constraint("Tangent", 0, 2, 1, 2),
    Sketcher.Constraint("Tangent", 1, 1, 2, 1),
    Sketcher.Constraint("Tangent", 2, 2, 3, 2),
    Sketcher.Constraint("Tangent", 3, 1, 0, 1),
    Sketcher.Constraint("Tangent", 4, 2, 5, 2),
    Sketcher.Constraint("Tangent", 5, 1, 6, 1),
    Sketcher.Constraint("Tangent", 6, 2, 7, 2),
    Sketcher.Constraint("Tangent", 7, 1, 4, 1),
    Sketcher.Constraint("Tangent", 8, 2, 9, 2),
    Sketcher.Constraint("Tangent", 9, 1, 10, 1),
    Sketcher.Constraint("Tangent", 10, 2, 11, 2),
    Sketcher.Constraint("Tangent", 11, 1, 8, 1),
    Sketcher.Constraint("Tangent", 12, 2, 13, 2),
    Sketcher.Constraint("Tangent", 13, 1, 14, 1),
    Sketcher.Constraint("Tangent", 14, 2, 15, 2),
    Sketcher.Constraint("Tangent", 15, 1, 12, 1),
    Sketcher.Constraint("Vertical", 0),
    Sketcher.Constraint("Vertical", 2),
    Sketcher.Constraint("Vertical", 4),
    Sketcher.Constraint("Vertical", 6),
    Sketcher.Constraint("Vertical", 8),
    Sketcher.Constraint("Vertical", 10),
    Sketcher.Constraint("Vertical", 12),
    Sketcher.Constraint("Vertical", 14),
    Sketcher.Constraint("Equal", 3, 5),
    Sketcher.Constraint("Equal", 7, 9),
    Sketcher.Constraint("Equal", 11, 13),
    Sketcher.Constraint("Symmetric", 1, 3, 9, 3, -1, 1),
    Sketcher.Constraint("Symmetric", 5, 3, 13, 3, -1, 1),
    Sketcher.Constraint("Symmetric", 3, 3, 5, 3, -2),
    Sketcher.Constraint("Horizontal", 1, 3, 7, 3),
    Sketcher.Constraint("Horizontal", 11, 3, 13, 3),
    Sketcher.Constraint("Horizontal", 9, 3, 15, 3),
    Sketcher.Constraint("DistanceY", 0, 2, 0, 1, Q("3 mm")),
    Sketcher.Constraint("Radius", 1, Q("1.85 mm")),
    Sketcher.Constraint("DistanceY", -1, 1, 1, 3, Q("41 mm")),
    Sketcher.Constraint("DistanceX", 1, 3, -1, 1, Q("29.7 mm")),
])
pocket3 = body.newObject("PartDesign::Pocket", "Pocket002")
pocket3.Profile = sketch4
pocket3.Type = "ThroughAll"
pocket3.Reversed = True

doc.recompute()
